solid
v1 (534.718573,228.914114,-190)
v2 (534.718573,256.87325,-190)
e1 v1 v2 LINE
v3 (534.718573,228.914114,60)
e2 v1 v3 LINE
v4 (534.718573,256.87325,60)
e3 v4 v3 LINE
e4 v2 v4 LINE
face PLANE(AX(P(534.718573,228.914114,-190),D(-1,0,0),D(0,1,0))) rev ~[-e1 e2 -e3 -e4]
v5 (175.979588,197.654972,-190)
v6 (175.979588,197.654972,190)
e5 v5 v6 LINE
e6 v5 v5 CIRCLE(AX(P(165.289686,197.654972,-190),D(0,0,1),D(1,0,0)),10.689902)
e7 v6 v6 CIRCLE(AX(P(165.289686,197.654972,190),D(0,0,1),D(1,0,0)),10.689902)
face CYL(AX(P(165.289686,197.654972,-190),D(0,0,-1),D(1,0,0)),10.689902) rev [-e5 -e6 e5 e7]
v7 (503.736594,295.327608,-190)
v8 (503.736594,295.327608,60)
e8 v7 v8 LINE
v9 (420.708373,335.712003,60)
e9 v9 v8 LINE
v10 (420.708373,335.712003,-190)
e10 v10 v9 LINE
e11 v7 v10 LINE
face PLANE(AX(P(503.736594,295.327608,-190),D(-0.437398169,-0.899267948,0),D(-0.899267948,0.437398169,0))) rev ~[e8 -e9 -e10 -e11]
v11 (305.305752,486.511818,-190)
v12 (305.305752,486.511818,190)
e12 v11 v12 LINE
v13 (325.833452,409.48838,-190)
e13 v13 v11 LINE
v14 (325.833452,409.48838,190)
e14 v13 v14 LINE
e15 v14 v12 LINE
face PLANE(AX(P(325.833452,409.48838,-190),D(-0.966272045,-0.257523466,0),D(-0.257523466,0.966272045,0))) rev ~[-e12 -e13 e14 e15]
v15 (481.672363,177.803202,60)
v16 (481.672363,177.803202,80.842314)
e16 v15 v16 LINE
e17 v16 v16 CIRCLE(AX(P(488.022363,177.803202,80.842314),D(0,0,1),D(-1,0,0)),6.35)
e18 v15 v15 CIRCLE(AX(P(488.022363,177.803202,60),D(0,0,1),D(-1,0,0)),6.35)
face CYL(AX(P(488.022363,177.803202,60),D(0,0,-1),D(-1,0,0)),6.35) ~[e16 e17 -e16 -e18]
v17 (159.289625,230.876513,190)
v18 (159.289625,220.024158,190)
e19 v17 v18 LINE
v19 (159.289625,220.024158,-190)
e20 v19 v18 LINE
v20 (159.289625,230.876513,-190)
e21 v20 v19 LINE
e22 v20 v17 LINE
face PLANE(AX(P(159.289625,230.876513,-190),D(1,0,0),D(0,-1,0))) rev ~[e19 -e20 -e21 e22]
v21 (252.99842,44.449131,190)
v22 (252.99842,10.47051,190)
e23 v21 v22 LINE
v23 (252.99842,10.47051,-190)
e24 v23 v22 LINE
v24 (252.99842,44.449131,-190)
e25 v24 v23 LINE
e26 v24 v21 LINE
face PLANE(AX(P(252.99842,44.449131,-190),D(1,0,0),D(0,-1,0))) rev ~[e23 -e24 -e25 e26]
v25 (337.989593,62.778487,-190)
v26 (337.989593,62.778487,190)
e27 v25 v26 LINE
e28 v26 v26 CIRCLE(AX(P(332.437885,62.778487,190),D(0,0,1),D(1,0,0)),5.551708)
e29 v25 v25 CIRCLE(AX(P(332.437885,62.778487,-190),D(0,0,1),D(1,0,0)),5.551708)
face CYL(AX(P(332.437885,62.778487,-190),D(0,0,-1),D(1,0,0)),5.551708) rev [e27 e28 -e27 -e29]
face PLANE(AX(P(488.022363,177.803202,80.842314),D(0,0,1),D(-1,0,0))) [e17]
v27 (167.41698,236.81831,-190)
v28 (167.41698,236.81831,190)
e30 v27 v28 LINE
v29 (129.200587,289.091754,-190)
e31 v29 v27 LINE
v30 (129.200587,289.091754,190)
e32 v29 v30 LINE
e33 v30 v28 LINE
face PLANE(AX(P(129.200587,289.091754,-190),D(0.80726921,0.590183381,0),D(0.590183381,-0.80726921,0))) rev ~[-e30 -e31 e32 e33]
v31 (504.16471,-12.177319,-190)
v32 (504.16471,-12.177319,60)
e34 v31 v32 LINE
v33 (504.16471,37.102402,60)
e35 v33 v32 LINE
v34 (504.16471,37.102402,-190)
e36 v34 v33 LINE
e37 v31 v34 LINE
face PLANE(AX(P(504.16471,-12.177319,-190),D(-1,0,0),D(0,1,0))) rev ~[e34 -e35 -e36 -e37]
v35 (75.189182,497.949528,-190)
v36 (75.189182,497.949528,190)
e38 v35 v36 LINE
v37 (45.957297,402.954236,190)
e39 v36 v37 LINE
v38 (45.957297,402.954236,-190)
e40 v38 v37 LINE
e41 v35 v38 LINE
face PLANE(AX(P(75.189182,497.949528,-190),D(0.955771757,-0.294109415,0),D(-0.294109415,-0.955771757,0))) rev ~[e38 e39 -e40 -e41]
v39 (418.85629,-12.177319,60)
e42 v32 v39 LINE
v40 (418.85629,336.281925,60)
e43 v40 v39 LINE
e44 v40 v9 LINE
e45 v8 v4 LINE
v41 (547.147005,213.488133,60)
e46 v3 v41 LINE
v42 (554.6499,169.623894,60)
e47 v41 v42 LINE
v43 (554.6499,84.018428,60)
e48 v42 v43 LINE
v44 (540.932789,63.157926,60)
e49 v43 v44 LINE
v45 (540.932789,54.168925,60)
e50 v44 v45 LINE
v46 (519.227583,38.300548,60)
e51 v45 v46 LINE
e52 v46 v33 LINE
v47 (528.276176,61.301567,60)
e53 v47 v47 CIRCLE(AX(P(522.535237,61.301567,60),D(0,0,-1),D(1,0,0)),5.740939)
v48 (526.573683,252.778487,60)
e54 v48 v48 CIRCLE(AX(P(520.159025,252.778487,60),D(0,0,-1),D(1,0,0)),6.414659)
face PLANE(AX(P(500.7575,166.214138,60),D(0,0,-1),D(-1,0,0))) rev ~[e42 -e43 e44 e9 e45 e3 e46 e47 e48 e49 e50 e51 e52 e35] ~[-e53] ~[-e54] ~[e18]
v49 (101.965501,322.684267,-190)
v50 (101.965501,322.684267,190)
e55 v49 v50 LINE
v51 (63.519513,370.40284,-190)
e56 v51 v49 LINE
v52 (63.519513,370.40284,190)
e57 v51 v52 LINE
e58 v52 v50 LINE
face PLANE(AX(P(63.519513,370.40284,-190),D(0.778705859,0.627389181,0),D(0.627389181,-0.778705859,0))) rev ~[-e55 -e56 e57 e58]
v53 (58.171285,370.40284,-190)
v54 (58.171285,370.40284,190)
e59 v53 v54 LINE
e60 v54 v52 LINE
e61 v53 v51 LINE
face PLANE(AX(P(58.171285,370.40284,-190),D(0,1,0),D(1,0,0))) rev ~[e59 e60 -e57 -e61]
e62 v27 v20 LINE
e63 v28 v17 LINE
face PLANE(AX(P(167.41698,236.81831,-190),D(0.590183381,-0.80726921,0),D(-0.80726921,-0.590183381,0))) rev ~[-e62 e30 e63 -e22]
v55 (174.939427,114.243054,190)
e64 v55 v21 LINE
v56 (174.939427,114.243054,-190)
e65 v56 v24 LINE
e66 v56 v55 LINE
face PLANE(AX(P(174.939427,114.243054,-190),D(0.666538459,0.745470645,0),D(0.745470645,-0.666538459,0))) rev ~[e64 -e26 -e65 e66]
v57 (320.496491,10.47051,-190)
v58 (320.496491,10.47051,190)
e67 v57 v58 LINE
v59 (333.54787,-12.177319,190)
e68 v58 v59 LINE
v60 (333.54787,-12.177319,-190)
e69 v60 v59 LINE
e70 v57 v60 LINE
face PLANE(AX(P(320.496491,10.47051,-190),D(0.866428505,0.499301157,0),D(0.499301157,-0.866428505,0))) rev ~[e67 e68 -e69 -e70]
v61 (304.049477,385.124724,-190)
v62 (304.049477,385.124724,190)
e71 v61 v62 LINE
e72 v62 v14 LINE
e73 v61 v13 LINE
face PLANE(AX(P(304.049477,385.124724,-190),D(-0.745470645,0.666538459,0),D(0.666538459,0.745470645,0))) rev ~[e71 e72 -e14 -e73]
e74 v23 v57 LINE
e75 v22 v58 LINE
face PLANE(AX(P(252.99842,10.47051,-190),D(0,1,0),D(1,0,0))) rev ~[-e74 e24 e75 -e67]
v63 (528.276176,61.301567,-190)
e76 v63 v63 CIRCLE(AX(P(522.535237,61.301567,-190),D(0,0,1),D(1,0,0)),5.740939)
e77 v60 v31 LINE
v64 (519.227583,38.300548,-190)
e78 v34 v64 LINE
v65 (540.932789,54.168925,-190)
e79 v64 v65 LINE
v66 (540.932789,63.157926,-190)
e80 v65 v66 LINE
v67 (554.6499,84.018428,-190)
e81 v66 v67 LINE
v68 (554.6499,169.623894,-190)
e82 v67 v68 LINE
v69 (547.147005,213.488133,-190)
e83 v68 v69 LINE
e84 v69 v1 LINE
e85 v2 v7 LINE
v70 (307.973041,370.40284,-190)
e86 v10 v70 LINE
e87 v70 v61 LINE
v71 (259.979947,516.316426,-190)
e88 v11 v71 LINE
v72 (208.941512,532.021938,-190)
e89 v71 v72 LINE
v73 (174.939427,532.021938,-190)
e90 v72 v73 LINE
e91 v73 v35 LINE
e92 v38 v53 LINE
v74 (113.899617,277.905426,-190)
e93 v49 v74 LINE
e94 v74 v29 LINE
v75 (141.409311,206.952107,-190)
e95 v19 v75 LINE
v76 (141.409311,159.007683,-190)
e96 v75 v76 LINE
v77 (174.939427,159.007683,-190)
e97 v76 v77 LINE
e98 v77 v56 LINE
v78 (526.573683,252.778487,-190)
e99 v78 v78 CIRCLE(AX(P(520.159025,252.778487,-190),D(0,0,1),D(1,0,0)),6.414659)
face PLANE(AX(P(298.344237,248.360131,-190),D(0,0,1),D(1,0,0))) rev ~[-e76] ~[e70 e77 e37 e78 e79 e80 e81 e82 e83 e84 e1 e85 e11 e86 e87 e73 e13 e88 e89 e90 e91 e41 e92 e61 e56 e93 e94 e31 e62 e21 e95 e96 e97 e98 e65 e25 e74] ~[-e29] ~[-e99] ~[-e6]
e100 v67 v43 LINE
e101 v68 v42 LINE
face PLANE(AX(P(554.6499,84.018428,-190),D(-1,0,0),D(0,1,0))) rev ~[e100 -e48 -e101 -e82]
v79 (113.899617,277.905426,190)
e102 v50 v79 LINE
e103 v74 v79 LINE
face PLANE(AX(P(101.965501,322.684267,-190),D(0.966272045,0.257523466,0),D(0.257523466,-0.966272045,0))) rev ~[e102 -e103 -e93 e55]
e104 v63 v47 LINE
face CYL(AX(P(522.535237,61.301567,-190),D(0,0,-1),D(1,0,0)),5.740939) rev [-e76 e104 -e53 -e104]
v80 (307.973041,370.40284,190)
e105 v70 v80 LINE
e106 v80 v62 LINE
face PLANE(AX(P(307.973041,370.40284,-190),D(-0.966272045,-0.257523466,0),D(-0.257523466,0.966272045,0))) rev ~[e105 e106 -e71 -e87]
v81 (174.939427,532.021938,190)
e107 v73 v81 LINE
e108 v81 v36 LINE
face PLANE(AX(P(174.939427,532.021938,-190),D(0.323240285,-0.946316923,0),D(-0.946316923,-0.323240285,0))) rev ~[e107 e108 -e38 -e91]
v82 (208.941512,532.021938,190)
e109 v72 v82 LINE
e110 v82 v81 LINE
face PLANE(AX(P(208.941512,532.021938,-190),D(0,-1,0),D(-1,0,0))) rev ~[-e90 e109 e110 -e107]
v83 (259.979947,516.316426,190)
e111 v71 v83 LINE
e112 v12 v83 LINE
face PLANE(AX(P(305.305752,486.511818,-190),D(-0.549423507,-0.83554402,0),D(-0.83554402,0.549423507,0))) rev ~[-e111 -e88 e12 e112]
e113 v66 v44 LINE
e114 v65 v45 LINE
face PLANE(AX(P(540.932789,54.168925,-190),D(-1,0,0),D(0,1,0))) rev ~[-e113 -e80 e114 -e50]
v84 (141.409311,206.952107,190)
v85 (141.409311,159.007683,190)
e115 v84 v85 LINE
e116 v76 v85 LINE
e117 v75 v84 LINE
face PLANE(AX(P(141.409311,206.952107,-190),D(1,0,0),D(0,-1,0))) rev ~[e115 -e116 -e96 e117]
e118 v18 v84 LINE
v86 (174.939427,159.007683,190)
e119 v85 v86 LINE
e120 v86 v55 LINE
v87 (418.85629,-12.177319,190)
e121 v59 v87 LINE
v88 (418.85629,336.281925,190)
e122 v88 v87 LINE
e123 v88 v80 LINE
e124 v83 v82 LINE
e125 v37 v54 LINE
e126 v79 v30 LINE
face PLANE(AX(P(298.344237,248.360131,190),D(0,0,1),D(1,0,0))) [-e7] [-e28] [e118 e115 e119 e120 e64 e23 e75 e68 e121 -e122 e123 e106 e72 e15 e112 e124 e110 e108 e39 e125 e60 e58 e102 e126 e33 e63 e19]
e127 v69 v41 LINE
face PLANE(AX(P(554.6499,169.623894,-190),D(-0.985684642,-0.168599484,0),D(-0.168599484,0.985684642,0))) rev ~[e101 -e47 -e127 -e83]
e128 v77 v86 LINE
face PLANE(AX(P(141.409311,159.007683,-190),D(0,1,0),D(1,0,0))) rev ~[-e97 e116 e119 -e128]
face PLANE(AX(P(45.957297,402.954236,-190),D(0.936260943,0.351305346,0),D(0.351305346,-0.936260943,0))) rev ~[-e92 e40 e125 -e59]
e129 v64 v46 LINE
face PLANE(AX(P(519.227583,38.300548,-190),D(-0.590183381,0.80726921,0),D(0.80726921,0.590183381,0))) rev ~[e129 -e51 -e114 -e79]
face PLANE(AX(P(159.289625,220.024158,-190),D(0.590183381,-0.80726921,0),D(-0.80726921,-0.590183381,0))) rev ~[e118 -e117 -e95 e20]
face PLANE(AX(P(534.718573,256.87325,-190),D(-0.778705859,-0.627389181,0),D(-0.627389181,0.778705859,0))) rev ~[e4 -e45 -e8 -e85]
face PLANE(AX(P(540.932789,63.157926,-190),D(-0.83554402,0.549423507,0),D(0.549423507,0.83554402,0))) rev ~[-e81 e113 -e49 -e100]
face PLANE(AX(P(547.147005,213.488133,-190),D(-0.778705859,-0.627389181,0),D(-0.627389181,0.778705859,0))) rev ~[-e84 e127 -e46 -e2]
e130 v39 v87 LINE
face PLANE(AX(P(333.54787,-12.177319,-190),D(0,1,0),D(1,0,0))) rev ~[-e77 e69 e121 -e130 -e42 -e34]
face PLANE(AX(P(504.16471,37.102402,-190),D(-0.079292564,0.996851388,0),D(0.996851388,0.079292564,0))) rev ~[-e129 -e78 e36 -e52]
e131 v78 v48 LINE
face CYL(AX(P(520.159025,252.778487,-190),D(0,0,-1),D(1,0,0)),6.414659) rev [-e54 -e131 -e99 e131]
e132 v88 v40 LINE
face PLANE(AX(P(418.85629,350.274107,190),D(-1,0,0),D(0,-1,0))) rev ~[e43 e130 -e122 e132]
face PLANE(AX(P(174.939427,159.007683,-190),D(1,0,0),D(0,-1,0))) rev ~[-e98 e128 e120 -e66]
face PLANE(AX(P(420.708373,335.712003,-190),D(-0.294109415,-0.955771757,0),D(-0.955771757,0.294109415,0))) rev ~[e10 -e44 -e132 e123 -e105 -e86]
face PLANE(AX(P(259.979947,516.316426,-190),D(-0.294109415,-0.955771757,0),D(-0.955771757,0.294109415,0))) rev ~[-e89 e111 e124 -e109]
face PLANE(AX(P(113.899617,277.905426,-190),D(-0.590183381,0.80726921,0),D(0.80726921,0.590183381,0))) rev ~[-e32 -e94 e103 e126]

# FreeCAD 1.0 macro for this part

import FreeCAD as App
import Part
import Sketcher
Q = App.Units.Quantity


def add_polygon(sketch, points):
    """Adds a closed chain of lines whose ends are joined by coincident constraints."""
    first, n = sketch.GeometryCount, len(points)
    for a, b in zip(points, points[1:] + points[:1]):
        sketch.addGeometry(Part.LineSegment(App.Vector(*a, 0), App.Vector(*b, 0)), False)
    for i in range(n):
        sketch.addConstraint(Sketcher.Constraint("Coincident", first + i, 2, first + (i + 1) % n, 1))

doc = App.newDocument("Part")
body = doc.addObject("PartDesign::Body", "Body")

# Sketch on XY plane
sketch1 = doc.addObject("Sketcher::SketchObject", "Sketch")
body.addObject(sketch1)
sketch1.AttachmentSupport = (doc.XY_Plane, [""])
sketch1.MapMode = "FlatFace"
add_polygon(sketch1, [(334, -12), (504, -12), (504, 37), (519, 38), (541, 54), (541, 63), (555, 84), (555, 170), (547, 213), (535, 229), (535, 257), (504, 295), (421, 336), (308, 370), (304, 385), (326, 409), (305, 487), (260, 516), (209, 532), (175, 532), (75, 498), (46, 403), (58, 370), (64, 370), (102, 323), (114, 278), (129, 289), (167, 237), (159, 231), (159, 220), (141, 207), (141, 159), (175, 159), (175, 114), (253, 44), (253, 10), (320, 10)])  # lines 0-36
sketch1.addGeometry(Part.Circle(App.Vector(332, 63, 0), App.Vector(0, 0, 1), 6), False)  # 37
sketch1.addGeometry(Part.Circle(App.Vector(523, 61, 0), App.Vector(0, 0, 1), 6), False)  # 38
sketch1.addGeometry(Part.Circle(App.Vector(165, 198, 0), App.Vector(0, 0, 1), 11), False)  # 39
sketch1.addGeometry(Part.Circle(App.Vector(520, 253, 0), App.Vector(0, 0, 1), 6), False)  # 40
sketch1.addConstraint(Sketcher.Constraint("Horizontal", 0))
sketch1.addConstraint(Sketcher.Constraint("Vertical", 1))
sketch1.addConstraint(Sketcher.Constraint("Vertical", 4))
sketch1.addConstraint(Sketcher.Constraint("Vertical", 6))
sketch1.addConstraint(Sketcher.Constraint("Vertical", 9))
sketch1.addConstraint(Sketcher.Constraint("Horizontal", 18))
sketch1.addConstraint(Sketcher.Constraint("Horizontal", 22))
sketch1.addConstraint(Sketcher.Constraint("Vertical", 28))
sketch1.addConstraint(Sketcher.Constraint("Vertical", 30))
sketch1.addConstraint(Sketcher.Constraint("Horizontal", 31))
sketch1.addConstraint(Sketcher.Constraint("Vertical", 32))
sketch1.addConstraint(Sketcher.Constraint("Vertical", 34))
sketch1.addConstraint(Sketcher.Constraint("Horizontal", 35))
sketch1.addConstraint(Sketcher.Constraint("Parallel", 8, 10))
sketch1.addConstraint(Sketcher.Constraint("Parallel", 13, 15))
sketch1.addConstraint(Sketcher.Constraint("Perpendicular", 5, 16))
sketch1.addConstraint(Sketcher.Constraint("Parallel", 12, 17))
sketch1.addConstraint(Sketcher.Constraint("Perpendicular", 17, 20))
sketch1.addConstraint(Sketcher.Constraint("Parallel", 10, 23))
sketch1.addConstraint(Sketcher.Constraint("Parallel", 15, 24))
sketch1.addConstraint(Sketcher.Constraint("Parallel", 3, 25))
sketch1.addConstraint(Sketcher.Constraint("Perpendicular", 25, 26))
sketch1.addConstraint(Sketcher.Constraint("Perpendicular", 26, 27))
sketch1.addConstraint(Sketcher.Constraint("Parallel", 27, 29))
sketch1.addConstraint(Sketcher.Constraint("Perpendicular", 14, 33))
sketch1.addConstraint(Sketcher.Constraint("Horizontal", 12, 2, 21, 2))
sketch1.addConstraint(Sketcher.Constraint("Vertical", 18, 2, 31, 2))
sketch1.addConstraint(Sketcher.Constraint("DistanceY", 37, 3, 40, 3, Q("190 mm")))
sketch1.addConstraint(Sketcher.Constraint("Diameter", 38, Q("11.481878 mm")))
sketch1.addConstraint(Sketcher.Constraint("DistanceY", 4, 1, 4, 2, Q("8.989002 mm")))
sketch1.addConstraint(Sketcher.Constraint("Diameter", 37, Q("11.103416 mm")))
sketch1.addConstraint(Sketcher.Constraint("Diameter", 39, Q("21.379803 mm")))
sketch1.addConstraint(Sketcher.Constraint("Diameter", 40, Q("12.829317 mm")))
sketch1.addConstraint(Sketcher.Constraint("DistanceX", 0, 1, 0, 2, Q("170.61684 mm")))
sketch1.addConstraint(Sketcher.Constraint("DistanceX", 35, 1, 35, 2, Q("67.49807 mm")))
sketch1.addConstraint(Sketcher.Constraint("DistanceY", 1, 1, 1, 2, Q("49.279721 mm")))
sketch1.addConstraint(Sketcher.Constraint("DistanceY", 32, 2, 32, 1, Q("44.764629 mm")))
sketch1.addConstraint(Sketcher.Constraint("DistanceY", 34, 2, 34, 1, Q("33.978621 mm")))
sketch1.addConstraint(Sketcher.Constraint("DistanceY", -1, 1, 1, 2, Q("37.102402 mm")))
sketch1.addConstraint(Sketcher.Constraint("DistanceX", -1, 1, 5, 2, Q("554.6499 mm")))
sketch1.addConstraint(Sketcher.Constraint("DistanceX", -1, 1, 23, 2, Q("101.965501 mm")))
sketch1.addConstraint(Sketcher.Constraint("DistanceX", 39, 3, 37, 3, Q("167.148199 mm")))
sketch1.addConstraint(Sketcher.Constraint("DistanceX", 37, 3, 2, 2, Q("186.789698 mm")))
sketch1.addConstraint(Sketcher.Constraint("DistanceY", 4, 2, 5, 2, Q("20.860502 mm")))
sketch1.addConstraint(Sketcher.Constraint("DistanceX", 11, 2, 9, 2, Q("114.0102 mm")))
sketch1.addConstraint(Sketcher.Constraint("DistanceX", 15, 2, 14, 2, Q("20.5277 mm")))
sketch1.addConstraint(Sketcher.Constraint("DistanceY", 13, 2, 16, 2, Q("131.191702 mm")))
sketch1.addConstraint(Sketcher.Constraint("DistanceX", 21, 2, 39, 3, Q("107.118401 mm")))
sketch1.addConstraint(Sketcher.Constraint("DistanceX", 25, 2, 39, 3, Q("36.089099 mm")))
sketch1.addConstraint(Sketcher.Constraint("Distance", 2, Q("15.11045 mm")))
sketch1.addConstraint(Sketcher.Constraint("Distance", 5, Q("24.966371 mm")))
sketch1.addConstraint(Sketcher.Constraint("Distance", 7, Q("44.501291 mm")))
sketch1.addConstraint(Sketcher.Constraint("Distance", 11, Q("92.328678 mm")))
sketch1.addConstraint(Sketcher.Constraint("Distance", 15, Q("79.711959 mm")))
sketch1.addConstraint(Sketcher.Constraint("Distance", 19, Q("105.40892 mm")))
sketch1.addConstraint(Sketcher.Constraint("Distance", 20, Q("99.391191 mm")))
sketch1.addConstraint(Sketcher.Constraint("Distance", 21, Q("34.767439 mm")))
sketch1.addConstraint(Sketcher.Constraint("Distance", 23, Q("61.27933 mm")))
sketch1.addConstraint(Sketcher.Constraint("Distance", 26, Q("64.753421 mm")))
sketch1.addConstraint(Sketcher.Constraint("Distance", 33, Q("104.711022 mm")))
sketch1.addConstraint(Sketcher.Constraint("DistanceX", 18, 2, 18, 1, Q("34.002085 mm")))
sketch1.addConstraint(Sketcher.Constraint("DistanceX", 22, 1, 22, 2, Q("5.348228 mm")))
sketch1.addConstraint(Sketcher.Constraint("DistanceX", 31, 1, 31, 2, Q("33.530117 mm")))
sketch1.addConstraint(Sketcher.Constraint("DistanceY", 6, 1, 6, 2, Q("85.605466 mm")))
sketch1.addConstraint(Sketcher.Constraint("DistanceY", 9, 1, 9, 2, Q("27.959136 mm")))
sketch1.addConstraint(Sketcher.Constraint("DistanceY", 28, 2, 28, 1, Q("10.852355 mm")))
sketch1.addConstraint(Sketcher.Constraint("DistanceY", 30, 2, 30, 1, Q("47.944424 mm")))
sketch1.addConstraint(Sketcher.Constraint("DistanceY", -1, 1, 39, 3, Q("197.654972 mm")))
sketch1.addConstraint(Sketcher.Constraint("DistanceX", -1, 1, 0, 2, Q("504.16471 mm")))
sketch1.addConstraint(Sketcher.Constraint("DistanceY", -1, 1, 2, 2, Q("38.300548 mm")))
sketch1.addConstraint(Sketcher.Constraint("DistanceY", -1, 1, 5, 2, Q("84.018428 mm")))
sketch1.addConstraint(Sketcher.Constraint("DistanceY", -1, 1, 9, 2, Q("256.87325 mm")))
sketch1.addConstraint(Sketcher.Constraint("DistanceY", -1, 1, 10, 2, Q("295.327608 mm")))
sketch1.addConstraint(Sketcher.Constraint("DistanceX", -1, 1, 12, 2, Q("307.973041 mm")))
sketch1.addConstraint(Sketcher.Constraint("DistanceY", -1, 1, 12, 2, Q("370.40284 mm")))
sketch1.addConstraint(Sketcher.Constraint("DistanceX", -1, 1, 14, 2, Q("325.833452 mm")))
sketch1.addConstraint(Sketcher.Constraint("DistanceY", -1, 1, 14, 2, Q("409.48838 mm")))
sketch1.addConstraint(Sketcher.Constraint("DistanceY", -1, 1, 19, 2, Q("497.949528 mm")))
sketch1.addConstraint(Sketcher.Constraint("DistanceY", -1, 1, 26, 2, Q("236.81831 mm")))
sketch1.addConstraint(Sketcher.Constraint("DistanceY", -1, 1, 28, 2, Q("220.024158 mm")))
sketch1.addConstraint(Sketcher.Constraint("DistanceX", -1, 1, 29, 2, Q("141.409311 mm")))
sketch1.addConstraint(Sketcher.Constraint("DistanceX", -1, 1, 33, 2, Q("252.99842 mm")))
sketch1.addConstraint(Sketcher.Constraint("DistanceY", 38, 3, 37, 3, Q("1.47692 mm")))
sketch1.addConstraint(Sketcher.Constraint("DistanceX", 39, 3, 38, 3, Q("357.245551 mm")))
sketch1.addConstraint(Sketcher.Constraint("DistanceX", 37, 3, 40, 3, Q("187.72114 mm")))
sketch1.addConstraint(Sketcher.Constraint("DistanceY", 2, 2, 38, 3, Q("23.001019 mm")))
pad1 = doc.addObject("PartDesign::Pad", "Pad")
body.addObject(pad1)
pad1.Profile = sketch1
pad1.Type = "TwoLengths"
pad1.Length = 190
pad1.Length2 = 190

# Sketch on XY plane
sketch2 = doc.addObject("Sketcher::SketchObject", "Sketch001")
body.addObject(sketch2)
sketch2.AttachmentSupport = (doc.XY_Plane, [""])
sketch2.MapMode = "FlatFace"
sketch2.AttachmentOffset = App.Placement(App.Vector(0, 0, 190), App.Rotation())
add_polygon(sketch2, [(419, 350), (419, -18), (583, -18), (583, 350)])  # lines 0-3
sketch2.addConstraint(Sketcher.Constraint("Vertical", 0))
sketch2.addConstraint(Sketcher.Constraint("Horizontal", 1))
sketch2.addConstraint(Sketcher.Constraint("Vertical", 2))
sketch2.addConstraint(Sketcher.Constraint("Horizontal", 3))
sketch2.addConstraint(Sketcher.Constraint("DistanceX", 1, 1, 1, 2, Q("163.80242 mm")))
sketch2.addConstraint(Sketcher.Constraint("DistanceY", 0, 2, 0, 1, Q("368.119937 mm")))
sketch2.addConstraint(Sketcher.Constraint("DistanceX", -1, 1, 0, 2, Q("418.85629 mm")))
sketch2.addConstraint(Sketcher.Constraint("DistanceY", 0, 2, -1, 1, Q("17.845831 mm")))
pocket1 = doc.addObject("PartDesign::Pocket", "Pocket")
body.addObject(pocket1)
pocket1.Profile = sketch2
pocket1.Length = 130

# Sketch on XY plane
sketch3 = doc.addObject("Sketcher::SketchObject", "Sketch002")
body.addObject(sketch3)
sketch3.AttachmentSupport = (doc.XY_Plane, [""])
sketch3.MapMode = "FlatFace"
sketch3.AttachmentOffset = App.Placement(App.Vector(0, 0, 60), App.Rotation())
sketch3.addGeometry(Part.Circle(App.Vector(488, 178, 0), App.Vector(0, 0, 1), 6), False)
sketch3.addConstraint(Sketcher.Constraint("Diameter", 0, Q("12.7 mm")))
sketch3.addConstraint(Sketcher.Constraint("DistanceY", -1, 1, 0, 3, Q("177.803202 mm")))
sketch3.addConstraint(Sketcher.Constraint("DistanceX", -1, 1, 0, 3, Q("488.022363 mm")))
pad2 = doc.addObject("PartDesign::Pad", "Pad001")
body.addObject(pad2)
pad2.Profile = sketch3
pad2.Length = 20.842314

doc.recompute()
